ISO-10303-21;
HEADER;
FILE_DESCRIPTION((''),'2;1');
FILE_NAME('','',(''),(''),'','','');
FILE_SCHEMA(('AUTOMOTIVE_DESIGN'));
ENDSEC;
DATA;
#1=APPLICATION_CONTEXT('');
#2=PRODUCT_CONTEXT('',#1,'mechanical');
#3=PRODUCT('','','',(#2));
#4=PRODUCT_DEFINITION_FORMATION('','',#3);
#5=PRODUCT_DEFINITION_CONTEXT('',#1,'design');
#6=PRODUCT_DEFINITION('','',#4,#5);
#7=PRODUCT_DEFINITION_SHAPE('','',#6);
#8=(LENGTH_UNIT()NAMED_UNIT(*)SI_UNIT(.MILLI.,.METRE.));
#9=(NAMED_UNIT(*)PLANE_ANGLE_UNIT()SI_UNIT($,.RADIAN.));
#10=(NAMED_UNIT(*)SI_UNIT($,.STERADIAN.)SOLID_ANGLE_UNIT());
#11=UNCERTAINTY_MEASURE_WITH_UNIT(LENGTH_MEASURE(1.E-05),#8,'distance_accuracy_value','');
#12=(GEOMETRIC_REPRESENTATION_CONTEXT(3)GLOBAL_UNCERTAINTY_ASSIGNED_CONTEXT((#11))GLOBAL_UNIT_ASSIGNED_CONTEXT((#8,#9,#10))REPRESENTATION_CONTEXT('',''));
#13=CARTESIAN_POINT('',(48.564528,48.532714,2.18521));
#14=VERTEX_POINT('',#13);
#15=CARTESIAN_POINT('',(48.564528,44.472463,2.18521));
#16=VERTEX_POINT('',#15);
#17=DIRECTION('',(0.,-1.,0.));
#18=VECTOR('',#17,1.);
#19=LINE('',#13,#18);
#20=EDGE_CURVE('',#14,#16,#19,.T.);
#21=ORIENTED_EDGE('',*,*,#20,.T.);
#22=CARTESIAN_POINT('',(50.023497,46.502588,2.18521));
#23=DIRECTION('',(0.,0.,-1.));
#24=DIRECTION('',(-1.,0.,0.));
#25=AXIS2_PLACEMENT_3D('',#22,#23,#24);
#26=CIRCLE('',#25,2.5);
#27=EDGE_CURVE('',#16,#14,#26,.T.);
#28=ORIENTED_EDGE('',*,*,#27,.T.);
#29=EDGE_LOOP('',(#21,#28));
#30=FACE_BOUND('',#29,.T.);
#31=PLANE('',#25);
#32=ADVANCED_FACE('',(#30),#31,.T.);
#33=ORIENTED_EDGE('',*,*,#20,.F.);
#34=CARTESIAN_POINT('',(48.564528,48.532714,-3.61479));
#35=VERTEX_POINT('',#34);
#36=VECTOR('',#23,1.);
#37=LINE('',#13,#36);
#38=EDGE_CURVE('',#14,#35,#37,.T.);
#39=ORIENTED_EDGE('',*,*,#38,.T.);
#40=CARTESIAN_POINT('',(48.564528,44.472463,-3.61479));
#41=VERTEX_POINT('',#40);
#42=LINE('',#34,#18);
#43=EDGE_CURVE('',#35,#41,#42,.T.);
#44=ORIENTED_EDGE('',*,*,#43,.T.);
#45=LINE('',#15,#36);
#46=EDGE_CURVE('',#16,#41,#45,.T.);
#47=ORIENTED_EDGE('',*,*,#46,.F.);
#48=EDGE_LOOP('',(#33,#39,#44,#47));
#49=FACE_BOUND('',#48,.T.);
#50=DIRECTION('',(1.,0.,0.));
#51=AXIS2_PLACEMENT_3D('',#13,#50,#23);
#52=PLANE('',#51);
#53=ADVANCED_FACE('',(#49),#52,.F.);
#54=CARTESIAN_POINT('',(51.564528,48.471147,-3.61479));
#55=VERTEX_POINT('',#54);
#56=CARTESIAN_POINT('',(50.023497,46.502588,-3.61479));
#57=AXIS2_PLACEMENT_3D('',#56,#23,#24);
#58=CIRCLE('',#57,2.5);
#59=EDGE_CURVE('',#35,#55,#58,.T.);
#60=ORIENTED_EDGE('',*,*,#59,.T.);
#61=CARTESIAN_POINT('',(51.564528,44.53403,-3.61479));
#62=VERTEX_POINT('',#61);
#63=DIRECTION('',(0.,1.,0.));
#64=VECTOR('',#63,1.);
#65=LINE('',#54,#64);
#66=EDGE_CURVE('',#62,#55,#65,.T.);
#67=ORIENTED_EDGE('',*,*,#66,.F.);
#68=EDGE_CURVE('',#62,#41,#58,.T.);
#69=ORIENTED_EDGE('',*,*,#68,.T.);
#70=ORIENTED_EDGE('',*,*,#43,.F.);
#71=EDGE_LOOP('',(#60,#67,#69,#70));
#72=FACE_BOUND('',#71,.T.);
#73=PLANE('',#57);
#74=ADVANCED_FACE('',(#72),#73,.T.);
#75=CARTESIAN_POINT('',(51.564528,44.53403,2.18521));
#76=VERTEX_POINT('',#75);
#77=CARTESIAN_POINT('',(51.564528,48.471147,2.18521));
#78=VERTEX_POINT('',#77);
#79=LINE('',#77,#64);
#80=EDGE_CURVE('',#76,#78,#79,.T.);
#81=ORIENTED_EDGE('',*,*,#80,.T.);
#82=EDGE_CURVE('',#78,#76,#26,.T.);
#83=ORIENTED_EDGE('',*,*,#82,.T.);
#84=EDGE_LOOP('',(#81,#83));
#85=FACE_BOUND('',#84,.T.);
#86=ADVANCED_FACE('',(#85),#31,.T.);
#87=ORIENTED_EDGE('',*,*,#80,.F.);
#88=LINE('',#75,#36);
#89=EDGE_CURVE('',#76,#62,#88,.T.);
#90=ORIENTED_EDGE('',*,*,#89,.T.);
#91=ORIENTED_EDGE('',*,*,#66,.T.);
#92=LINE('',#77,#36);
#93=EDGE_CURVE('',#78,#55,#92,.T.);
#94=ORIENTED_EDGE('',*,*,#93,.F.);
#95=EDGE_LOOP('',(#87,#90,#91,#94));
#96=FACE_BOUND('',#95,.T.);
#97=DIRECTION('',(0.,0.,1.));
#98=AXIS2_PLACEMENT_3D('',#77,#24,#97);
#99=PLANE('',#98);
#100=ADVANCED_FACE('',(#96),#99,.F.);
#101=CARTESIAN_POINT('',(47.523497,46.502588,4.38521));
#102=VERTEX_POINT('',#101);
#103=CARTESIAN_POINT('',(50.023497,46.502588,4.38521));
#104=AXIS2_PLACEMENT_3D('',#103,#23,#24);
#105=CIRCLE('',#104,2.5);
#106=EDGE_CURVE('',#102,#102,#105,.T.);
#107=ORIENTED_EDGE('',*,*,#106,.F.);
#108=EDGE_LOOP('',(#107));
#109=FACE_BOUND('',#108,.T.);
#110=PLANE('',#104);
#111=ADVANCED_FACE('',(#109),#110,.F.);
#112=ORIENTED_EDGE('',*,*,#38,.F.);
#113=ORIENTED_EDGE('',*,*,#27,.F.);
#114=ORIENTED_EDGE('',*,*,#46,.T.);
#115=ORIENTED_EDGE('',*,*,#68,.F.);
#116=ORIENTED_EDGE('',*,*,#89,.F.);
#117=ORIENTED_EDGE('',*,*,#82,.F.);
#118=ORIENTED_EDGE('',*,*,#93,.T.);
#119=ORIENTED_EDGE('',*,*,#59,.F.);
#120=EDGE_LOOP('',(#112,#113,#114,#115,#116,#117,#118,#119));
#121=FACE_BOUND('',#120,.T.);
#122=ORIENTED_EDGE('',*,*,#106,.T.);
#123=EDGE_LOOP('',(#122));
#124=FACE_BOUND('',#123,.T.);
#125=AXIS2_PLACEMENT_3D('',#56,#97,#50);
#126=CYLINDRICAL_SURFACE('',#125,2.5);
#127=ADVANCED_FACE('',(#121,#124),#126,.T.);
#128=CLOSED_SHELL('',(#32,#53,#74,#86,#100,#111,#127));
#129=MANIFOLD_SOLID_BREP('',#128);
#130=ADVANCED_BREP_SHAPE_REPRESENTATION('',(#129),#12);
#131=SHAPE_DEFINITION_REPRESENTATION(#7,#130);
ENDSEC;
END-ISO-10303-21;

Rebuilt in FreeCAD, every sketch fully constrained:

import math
import FreeCAD as App
import Part
import Sketcher

V = App.Vector

doc = App.newDocument("Part")
params = doc.addObject("Spreadsheet::Sheet", "Params")
for row, (alias, value) in enumerate([
    ("sketch1_diameter", "5 mm"),
    ("pad1_length", "8 mm"),
    ("sketch2_radius", "2.5 mm"),
    ("pocket1_length", "5.8 mm"),
], start=1):
    params.set(f"A{row}", alias)
    params.set(f"B{row}", "=" + value)
    params.setAlias(f"B{row}", alias)

body = doc.addObject("PartDesign::Body", "Body")

# Sketch on XY plane
sketch1 = doc.addObject("Sketcher::SketchObject", "Sketch")
body.addObject(sketch1)
sketch1.AttachmentSupport = (doc.XY_Plane, [""])
sketch1.MapMode = "FlatFace"
sketch1.AttachmentOffset = App.Placement(V(0, 0, 4.38521), App.Rotation())
sketch1.addGeometry(Part.Circle(V(50, 46.5, 0), V(0, 0, 1), 2.5), False)
sketch1.addConstraint(Sketcher.Constraint("Diameter", 0, 5.0))
sketch1.addConstraint(Sketcher.Constraint("DistanceY", -1, 1, 0, 3, 46.502588))
sketch1.addConstraint(Sketcher.Constraint("DistanceX", -1, 1, 0, 3, 50.023497))
sketch1.setExpression("Constraints[0]", "Params.sketch1_diameter")
pad1 = doc.addObject("PartDesign::Pad", "Pad")
body.addObject(pad1)
pad1.Profile = sketch1
pad1.setExpression("Length", "Params.pad1_length")
pad1.Reversed = True

# Sketch on XY plane
sketch2 = doc.addObject("Sketcher::SketchObject", "Sketch001")
body.addObject(sketch2)
sketch2.AttachmentSupport = (doc.XY_Plane, [""])
sketch2.MapMode = "FlatFace"
sketch2.AttachmentOffset = App.Placement(V(0, 0, 2.18521), App.Rotation())
sketch2.addGeometry(Part.LineSegment(V(51.6, 44.5, 0), V(51.6, 48.5, 0)), False)
sketch2.addGeometry(Part.ArcOfCircle(Part.Circle(V(50, 46.5, 0), V(0, 0, 1), 2.5), math.radians(-52), math.radians(52)), False)
sketch2.addGeometry(Part.LineSegment(V(48.6, 48.5, 0), V(48.6, 44.5, 0)), False)
sketch2.addGeometry(Part.ArcOfCircle(Part.Circle(V(50, 46.5, 0), V(0, 0, 1), 2.5), math.radians(126), math.radians(234)), False)
sketch2.addConstraint(Sketcher.Constraint("Coincident", 0, 1, 1, 1))
sketch2.addConstraint(Sketcher.Constraint("Coincident", 1, 2, 0, 2))
sketch2.addConstraint(Sketcher.Constraint("Coincident", 2, 1, 3, 1))
sketch2.addConstraint(Sketcher.Constraint("Coincident", 3, 2, 2, 2))
sketch2.addConstraint(Sketcher.Constraint("Vertical", 0))
sketch2.addConstraint(Sketcher.Constraint("Vertical", 2))
sketch2.addConstraint(Sketcher.Constraint("Coincident", 3, 3, 1, 3))
sketch2.addConstraint(Sketcher.Constraint("Equal", 1, 3))
sketch2.addConstraint(Sketcher.Constraint("Radius", 1, 2.5))
sketch2.addConstraint(Sketcher.Constraint("DistanceX", 2, 1, 1, 2, 3.0))
sketch2.addConstraint(Sketcher.Constraint("DistanceY", 2, 2, 2, 1, 4.060252))
sketch2.addConstraint(Sketcher.Constraint("DistanceY", -1, 1, 1, 3, 46.502588))
sketch2.addConstraint(Sketcher.Constraint("DistanceX", -1, 1, 0, 1, 51.564528))
sketch2.setExpression("Constraints[8]", "Params.sketch2_radius")
pocket1 = doc.addObject("PartDesign::Pocket", "Pocket")
body.addObject(pocket1)
pocket1.Profile = sketch2
pocket1.setExpression("Length", "Params.pocket1_length")

doc.recompute()
